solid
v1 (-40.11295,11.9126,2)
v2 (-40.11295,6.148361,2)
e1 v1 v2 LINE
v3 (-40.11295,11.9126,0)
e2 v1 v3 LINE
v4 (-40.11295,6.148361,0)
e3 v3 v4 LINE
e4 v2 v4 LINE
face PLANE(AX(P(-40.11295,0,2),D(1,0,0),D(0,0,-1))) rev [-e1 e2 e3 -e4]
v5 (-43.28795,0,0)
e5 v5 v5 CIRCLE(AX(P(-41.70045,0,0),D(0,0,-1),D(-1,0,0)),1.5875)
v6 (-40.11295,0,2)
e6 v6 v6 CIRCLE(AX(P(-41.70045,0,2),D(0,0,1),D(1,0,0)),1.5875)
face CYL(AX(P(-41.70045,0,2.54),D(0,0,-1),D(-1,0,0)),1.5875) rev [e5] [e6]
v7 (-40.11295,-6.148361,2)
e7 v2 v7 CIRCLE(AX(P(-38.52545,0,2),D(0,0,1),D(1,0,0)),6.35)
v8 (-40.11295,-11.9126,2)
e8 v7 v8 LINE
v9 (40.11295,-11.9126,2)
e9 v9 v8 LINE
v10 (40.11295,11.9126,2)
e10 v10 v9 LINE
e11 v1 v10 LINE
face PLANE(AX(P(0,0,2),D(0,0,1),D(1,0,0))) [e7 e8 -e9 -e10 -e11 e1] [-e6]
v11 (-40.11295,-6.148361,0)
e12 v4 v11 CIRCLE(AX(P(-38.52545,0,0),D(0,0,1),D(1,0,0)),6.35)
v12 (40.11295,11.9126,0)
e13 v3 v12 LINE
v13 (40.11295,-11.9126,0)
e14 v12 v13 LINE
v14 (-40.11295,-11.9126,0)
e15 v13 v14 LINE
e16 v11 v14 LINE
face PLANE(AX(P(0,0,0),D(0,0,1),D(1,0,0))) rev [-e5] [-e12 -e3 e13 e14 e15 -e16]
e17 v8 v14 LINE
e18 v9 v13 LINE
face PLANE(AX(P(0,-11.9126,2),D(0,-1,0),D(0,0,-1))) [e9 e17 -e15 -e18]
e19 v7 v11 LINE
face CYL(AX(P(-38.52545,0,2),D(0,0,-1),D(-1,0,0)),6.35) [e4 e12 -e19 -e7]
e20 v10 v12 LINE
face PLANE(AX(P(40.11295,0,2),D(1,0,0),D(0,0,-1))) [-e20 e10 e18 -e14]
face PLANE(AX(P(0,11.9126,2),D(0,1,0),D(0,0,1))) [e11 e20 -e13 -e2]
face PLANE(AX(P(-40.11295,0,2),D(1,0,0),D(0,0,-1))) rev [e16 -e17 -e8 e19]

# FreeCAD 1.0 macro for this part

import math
import FreeCAD as App
import Part
import Sketcher

V = App.Vector
Q = App.Units.Quantity

doc = App.newDocument("Part")
body = doc.addObject("PartDesign::Body", "Body")

sketch1 = body.newObject("Sketcher::SketchObject", "Sketch")
sketch1.AttachmentSupport = (doc.getObject("XY_Plane"), [""])
sketch1.MapMode = "FlatFace"
sketch1.addGeometry(Part.ArcOfCircle(Part.Circle(V(-39, 0, 0), V(0, 0, 1), 6), math.radians(104), math.radians(256)), False)
sketch1.addGeometry(Part.LineSegment(V(-40, -6, 0), V(-40, -12, 0)), False)
sketch1.addGeometry(Part.LineSegment(V(-40, -12, 0), V(40, -12, 0)), False)
sketch1.addGeometry(Part.LineSegment(V(40, -12, 0), V(40, 12, 0)), False)
sketch1.addGeometry(Part.LineSegment(V(40, 12, 0), V(-40, 12, 0)), False)
sketch1.addGeometry(Part.LineSegment(V(-40, 12, 0), V(-40, 6, 0)), False)
sketch1.addConstraint(Sketcher.Constraint("Coincident", 0, 2, 1, 1))
sketch1.addConstraint(Sketcher.Constraint("Coincident", 1, 2, 2, 1))
sketch1.addConstraint(Sketcher.Constraint("Coincident", 2, 2, 3, 1))
sketch1.addConstraint(Sketcher.Constraint("Coincident", 3, 2, 4, 1))
sketch1.addConstraint(Sketcher.Constraint("Coincident", 4, 2, 5, 1))
sketch1.addConstraint(Sketcher.Constraint("Coincident", 5, 2, 0, 1))
sketch1.addConstraint(Sketcher.Constraint("Vertical", 1))
sketch1.addConstraint(Sketcher.Constraint("Horizontal", 2))
sketch1.addConstraint(Sketcher.Constraint("Vertical", 3))
sketch1.addConstraint(Sketcher.Constraint("Horizontal", 4))
sketch1.addConstraint(Sketcher.Constraint("Vertical", 5))
sketch1.addConstraint(Sketcher.Constraint("Symmetric", 1, 2, 3, 2, -1, 1))
sketch1.addConstraint(Sketcher.Constraint("Symmetric", 0, 2, 5, 2, -1))
sketch1.addConstraint(Sketcher.Constraint("Radius", 0, Q("0.25 in")))
sketch1.addConstraint(Sketcher.Constraint("DistanceY", 3, 1, 3, 2, Q("0.938 in")))
sketch1.addConstraint(Sketcher.Constraint("DistanceX", 2, 1, 2, 2, Q("3.1585 in")))
sketch1.addConstraint(Sketcher.Constraint("DistanceX", 0, 2, 0, 3, Q("0.0625 in")))
pad1 = body.newObject("PartDesign::Pad", "Pad")
pad1.Profile = sketch1
pad1.Length = 2

sketch2 = body.newObject("Sketcher::SketchObject", "Sketch001")
sketch2.AttachmentSupport = (doc.getObject("XY_Plane"), [""])
sketch2.MapMode = "FlatFace"
sketch2.addGeometry(Part.Circle(V(-41.7, 0, 0), V(0, 0, 1), 1.6), False)
sketch2.addConstraint(Sketcher.Constraint("PointOnObject", 0, 3, -1))
sketch2.addConstraint(Sketcher.Constraint("Diameter", 0, Q("0.125 in")))
sketch2.addConstraint(Sketcher.Constraint("DistanceX", 0, 3, -1, 1, Q("41.70045 mm")))
pocket1 = body.newObject("PartDesign::Pocket", "Pocket")
pocket1.Profile = sketch2
pocket1.Length = Q("0.1 in")
pocket1.Reversed = True

doc.recompute()
